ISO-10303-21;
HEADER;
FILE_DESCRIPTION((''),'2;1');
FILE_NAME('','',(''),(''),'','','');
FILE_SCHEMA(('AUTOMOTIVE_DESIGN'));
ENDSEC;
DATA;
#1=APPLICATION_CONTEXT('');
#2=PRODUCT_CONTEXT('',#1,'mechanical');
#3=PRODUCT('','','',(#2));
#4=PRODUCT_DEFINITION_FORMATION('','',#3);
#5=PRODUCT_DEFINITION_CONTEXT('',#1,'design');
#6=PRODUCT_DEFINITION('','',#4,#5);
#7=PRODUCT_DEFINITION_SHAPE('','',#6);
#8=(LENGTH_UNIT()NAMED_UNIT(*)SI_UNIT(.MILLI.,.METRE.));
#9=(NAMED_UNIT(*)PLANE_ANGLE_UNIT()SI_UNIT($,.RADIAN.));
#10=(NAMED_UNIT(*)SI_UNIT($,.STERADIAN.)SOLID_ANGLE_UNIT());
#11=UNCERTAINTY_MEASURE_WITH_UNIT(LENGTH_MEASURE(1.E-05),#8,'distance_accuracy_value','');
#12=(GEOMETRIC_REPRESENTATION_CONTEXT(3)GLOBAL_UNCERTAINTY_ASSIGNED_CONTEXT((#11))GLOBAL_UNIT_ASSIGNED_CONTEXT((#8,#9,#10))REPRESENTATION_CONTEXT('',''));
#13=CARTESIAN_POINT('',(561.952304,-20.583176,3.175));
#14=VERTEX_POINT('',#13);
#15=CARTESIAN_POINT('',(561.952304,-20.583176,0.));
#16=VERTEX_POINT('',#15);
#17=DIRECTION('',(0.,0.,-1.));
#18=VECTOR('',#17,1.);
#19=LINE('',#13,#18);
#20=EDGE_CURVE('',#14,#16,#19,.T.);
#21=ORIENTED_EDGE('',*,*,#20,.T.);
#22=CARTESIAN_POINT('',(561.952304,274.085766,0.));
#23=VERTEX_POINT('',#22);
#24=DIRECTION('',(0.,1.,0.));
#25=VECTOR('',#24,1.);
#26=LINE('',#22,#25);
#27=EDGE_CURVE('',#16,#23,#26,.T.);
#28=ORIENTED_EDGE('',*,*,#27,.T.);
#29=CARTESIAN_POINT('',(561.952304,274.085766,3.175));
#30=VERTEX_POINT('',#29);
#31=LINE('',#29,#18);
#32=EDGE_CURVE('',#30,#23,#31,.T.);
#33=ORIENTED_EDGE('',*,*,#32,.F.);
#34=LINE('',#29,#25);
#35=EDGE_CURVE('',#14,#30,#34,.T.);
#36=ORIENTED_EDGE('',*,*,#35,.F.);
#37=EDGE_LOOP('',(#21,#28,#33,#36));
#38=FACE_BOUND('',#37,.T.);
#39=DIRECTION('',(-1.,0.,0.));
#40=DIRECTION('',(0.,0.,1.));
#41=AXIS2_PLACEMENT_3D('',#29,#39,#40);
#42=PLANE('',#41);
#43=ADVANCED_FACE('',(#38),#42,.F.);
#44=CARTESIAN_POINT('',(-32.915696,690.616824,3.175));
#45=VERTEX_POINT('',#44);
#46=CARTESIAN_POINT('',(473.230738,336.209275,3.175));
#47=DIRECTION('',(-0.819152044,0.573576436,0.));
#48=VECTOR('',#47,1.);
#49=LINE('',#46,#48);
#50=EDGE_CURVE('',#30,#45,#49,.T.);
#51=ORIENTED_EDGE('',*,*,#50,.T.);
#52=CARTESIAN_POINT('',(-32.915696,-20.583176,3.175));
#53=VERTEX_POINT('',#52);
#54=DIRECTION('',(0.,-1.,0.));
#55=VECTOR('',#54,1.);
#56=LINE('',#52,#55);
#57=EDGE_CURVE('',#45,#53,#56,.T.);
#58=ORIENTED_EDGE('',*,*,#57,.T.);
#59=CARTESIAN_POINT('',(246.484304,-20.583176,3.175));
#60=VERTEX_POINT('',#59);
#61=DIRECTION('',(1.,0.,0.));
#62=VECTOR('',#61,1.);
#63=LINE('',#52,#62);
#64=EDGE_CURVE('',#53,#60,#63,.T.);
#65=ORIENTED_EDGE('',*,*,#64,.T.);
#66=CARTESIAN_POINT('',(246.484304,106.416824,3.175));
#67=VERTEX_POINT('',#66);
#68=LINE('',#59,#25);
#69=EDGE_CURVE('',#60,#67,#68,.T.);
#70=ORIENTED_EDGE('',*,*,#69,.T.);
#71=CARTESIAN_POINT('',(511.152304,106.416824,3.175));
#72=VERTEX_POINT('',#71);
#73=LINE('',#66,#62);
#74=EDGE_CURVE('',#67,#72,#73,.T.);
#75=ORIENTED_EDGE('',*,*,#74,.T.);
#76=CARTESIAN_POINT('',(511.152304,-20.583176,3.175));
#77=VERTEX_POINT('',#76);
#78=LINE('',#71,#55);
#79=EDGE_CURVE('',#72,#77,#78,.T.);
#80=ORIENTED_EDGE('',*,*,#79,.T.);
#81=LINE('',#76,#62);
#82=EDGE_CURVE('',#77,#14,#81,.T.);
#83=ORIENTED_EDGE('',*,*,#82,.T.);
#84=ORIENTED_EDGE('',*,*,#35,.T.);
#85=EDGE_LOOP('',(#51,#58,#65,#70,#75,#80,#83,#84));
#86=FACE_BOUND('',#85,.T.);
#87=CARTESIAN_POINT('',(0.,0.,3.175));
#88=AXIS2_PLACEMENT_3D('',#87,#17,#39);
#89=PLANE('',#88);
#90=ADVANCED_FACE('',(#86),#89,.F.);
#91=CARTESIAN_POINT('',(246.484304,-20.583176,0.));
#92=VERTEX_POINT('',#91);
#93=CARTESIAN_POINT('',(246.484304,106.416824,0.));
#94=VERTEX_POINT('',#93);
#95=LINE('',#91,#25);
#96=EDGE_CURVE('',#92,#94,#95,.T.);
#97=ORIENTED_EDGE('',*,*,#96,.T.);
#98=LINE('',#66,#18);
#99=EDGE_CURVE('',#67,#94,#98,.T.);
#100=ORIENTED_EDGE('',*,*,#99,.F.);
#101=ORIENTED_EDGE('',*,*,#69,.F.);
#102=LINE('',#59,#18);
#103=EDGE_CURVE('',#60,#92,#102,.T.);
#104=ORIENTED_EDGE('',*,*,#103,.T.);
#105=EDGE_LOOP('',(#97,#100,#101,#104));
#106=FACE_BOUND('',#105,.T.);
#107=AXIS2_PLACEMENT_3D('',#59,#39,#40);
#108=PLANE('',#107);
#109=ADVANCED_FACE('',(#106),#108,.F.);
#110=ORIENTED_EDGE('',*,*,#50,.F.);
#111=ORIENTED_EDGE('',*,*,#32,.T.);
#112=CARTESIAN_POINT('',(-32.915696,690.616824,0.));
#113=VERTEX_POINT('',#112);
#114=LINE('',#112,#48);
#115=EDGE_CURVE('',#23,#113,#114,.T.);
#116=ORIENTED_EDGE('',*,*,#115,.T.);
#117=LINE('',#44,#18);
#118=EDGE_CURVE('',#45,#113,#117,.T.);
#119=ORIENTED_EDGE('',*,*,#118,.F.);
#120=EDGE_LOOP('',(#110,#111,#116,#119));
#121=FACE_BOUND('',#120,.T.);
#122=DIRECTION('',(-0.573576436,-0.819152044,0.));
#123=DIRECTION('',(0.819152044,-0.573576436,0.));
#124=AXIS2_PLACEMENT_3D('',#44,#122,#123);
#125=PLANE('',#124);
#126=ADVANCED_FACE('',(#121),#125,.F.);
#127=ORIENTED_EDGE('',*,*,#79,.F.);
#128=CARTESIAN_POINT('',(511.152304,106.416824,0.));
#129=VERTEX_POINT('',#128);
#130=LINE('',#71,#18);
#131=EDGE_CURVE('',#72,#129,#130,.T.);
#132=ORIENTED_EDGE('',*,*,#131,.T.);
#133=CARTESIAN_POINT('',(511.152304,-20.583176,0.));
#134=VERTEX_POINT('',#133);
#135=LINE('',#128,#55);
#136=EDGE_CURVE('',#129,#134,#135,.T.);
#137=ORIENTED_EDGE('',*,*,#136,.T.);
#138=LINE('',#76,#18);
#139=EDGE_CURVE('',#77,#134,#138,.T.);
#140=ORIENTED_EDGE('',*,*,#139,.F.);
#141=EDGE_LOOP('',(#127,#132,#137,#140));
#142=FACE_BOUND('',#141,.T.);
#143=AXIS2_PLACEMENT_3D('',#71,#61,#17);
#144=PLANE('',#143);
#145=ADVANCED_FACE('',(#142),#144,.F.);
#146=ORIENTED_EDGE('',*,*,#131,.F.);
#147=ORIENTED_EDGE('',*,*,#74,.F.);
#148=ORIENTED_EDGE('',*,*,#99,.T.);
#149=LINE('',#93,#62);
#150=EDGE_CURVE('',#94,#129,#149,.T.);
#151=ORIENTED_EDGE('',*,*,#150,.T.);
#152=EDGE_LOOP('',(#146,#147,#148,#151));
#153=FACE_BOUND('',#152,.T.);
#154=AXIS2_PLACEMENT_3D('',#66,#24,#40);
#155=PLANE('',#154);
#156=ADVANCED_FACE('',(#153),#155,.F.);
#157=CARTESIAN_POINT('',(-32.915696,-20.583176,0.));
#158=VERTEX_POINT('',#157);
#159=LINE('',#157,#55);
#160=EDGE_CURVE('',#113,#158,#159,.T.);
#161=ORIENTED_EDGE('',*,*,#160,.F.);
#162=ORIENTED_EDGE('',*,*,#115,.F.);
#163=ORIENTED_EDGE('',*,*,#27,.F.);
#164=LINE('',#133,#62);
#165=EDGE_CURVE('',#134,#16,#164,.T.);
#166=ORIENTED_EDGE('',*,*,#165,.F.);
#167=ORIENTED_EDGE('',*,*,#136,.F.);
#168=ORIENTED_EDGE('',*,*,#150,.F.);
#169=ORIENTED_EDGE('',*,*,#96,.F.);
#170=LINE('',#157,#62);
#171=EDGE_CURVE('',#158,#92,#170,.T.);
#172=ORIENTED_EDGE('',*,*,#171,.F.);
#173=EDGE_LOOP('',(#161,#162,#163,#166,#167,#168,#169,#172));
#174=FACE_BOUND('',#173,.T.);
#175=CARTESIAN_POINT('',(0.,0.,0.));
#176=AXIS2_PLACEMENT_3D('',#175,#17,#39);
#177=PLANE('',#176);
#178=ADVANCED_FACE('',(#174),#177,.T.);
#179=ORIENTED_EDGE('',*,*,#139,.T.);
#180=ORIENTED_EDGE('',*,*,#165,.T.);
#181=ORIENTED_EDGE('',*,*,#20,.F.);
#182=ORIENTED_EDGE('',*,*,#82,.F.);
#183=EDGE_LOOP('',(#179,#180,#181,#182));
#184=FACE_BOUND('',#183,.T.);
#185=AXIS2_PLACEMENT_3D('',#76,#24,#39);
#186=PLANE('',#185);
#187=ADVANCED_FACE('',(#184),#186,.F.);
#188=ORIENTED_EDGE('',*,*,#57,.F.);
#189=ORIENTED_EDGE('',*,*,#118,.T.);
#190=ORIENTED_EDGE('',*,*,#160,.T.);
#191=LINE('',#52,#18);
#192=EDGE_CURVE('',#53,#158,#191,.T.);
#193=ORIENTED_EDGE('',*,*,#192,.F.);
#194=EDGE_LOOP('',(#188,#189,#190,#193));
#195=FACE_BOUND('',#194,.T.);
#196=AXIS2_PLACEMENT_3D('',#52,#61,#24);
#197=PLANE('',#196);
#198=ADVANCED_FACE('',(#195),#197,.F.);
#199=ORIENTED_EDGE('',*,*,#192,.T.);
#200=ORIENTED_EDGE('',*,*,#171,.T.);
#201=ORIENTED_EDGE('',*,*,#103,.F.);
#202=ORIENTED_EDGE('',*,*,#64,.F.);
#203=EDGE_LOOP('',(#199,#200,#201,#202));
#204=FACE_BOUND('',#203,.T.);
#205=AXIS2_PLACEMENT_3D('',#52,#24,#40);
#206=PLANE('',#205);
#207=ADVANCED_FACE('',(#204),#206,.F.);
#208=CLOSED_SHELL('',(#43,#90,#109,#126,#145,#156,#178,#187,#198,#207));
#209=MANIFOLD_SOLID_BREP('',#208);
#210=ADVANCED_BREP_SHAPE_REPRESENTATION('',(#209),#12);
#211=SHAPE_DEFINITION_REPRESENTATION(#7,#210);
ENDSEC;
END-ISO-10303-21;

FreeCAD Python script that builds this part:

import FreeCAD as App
import Part
import Sketcher

V = App.Vector
Q = App.Units.Quantity


def add_polygon(sketch, points):
    """Adds a closed chain of lines whose ends are joined by coincident constraints."""
    first, n = sketch.GeometryCount, len(points)
    for a, b in zip(points, points[1:] + points[:1]):
        sketch.addGeometry(Part.LineSegment(App.Vector(*a, 0), App.Vector(*b, 0)), False)
    for i in range(n):
        sketch.addConstraint(Sketcher.Constraint("Coincident", first + i, 2, first + (i + 1) % n, 1))

doc = App.newDocument("Part")
body = doc.addObject("PartDesign::Body", "Body")

# Sketch on XY plane
sketch1 = body.newObject("Sketcher::SketchObject", "Sketch")
sketch1.AttachmentSupport = (doc.getObject("XY_Plane"), [""])
sketch1.MapMode = "FlatFace"
add_polygon(sketch1, [(-32.915696, -20.583176), (246.484304, -20.583176), (246.484304, 106.416824), (511.152304, 106.416824), (511.152304, -20.583176), (561.952304, -20.583176), (561.952304, 274.085766), (473.230738, 336.209275), (-32.915696, 690.616824)])  # lines 0-8
sketch1.addConstraint(Sketcher.Constraint("Horizontal", 0))
sketch1.addConstraint(Sketcher.Constraint("Vertical", 1))
sketch1.addConstraint(Sketcher.Constraint("Horizontal", 2))
sketch1.addConstraint(Sketcher.Constraint("Vertical", 3))
sketch1.addConstraint(Sketcher.Constraint("Horizontal", 4))
sketch1.addConstraint(Sketcher.Constraint("Vertical", 5))
sketch1.addConstraint(Sketcher.Constraint("Vertical", 8))
sketch1.addConstraint(Sketcher.Constraint("Parallel", 6, 7))
sketch1.addConstraint(Sketcher.Constraint("Horizontal", 0, 2, 3, 2))
sketch1.addConstraint(Sketcher.Constraint("DistanceX", 0, 1, 0, 2, Q("11 in")))
sketch1.addConstraint(Sketcher.Constraint("DistanceX", 4, 1, 4, 2, Q("2 in")))
sketch1.addConstraint(Sketcher.Constraint("DistanceY", 1, 1, 1, 2, Q("5 in")))
sketch1.addConstraint(Sketcher.Constraint("DistanceY", 8, 2, 8, 1, Q("28 in")))
sketch1.addConstraint(Sketcher.Constraint("Angle", 6, Q("145 deg")))
sketch1.addConstraint(Sketcher.Constraint("DistanceX", 2, 1, 2, 2, Q("10.42 in")))
sketch1.addConstraint(Sketcher.Constraint("DistanceY", 5, 2, 6, 2, Q("62.123509 mm")))
sketch1.addConstraint(Sketcher.Constraint("DistanceX", -1, 1, 0, 2, Q("246.484304 mm")))
sketch1.addConstraint(Sketcher.Constraint("DistanceY", 0, 2, -1, 1, Q("20.583176 mm")))
pad1 = body.newObject("PartDesign::Pad", "Pad")
pad1.Profile = sketch1
pad1.Length = Q("0.125 in")

doc.recompute()
